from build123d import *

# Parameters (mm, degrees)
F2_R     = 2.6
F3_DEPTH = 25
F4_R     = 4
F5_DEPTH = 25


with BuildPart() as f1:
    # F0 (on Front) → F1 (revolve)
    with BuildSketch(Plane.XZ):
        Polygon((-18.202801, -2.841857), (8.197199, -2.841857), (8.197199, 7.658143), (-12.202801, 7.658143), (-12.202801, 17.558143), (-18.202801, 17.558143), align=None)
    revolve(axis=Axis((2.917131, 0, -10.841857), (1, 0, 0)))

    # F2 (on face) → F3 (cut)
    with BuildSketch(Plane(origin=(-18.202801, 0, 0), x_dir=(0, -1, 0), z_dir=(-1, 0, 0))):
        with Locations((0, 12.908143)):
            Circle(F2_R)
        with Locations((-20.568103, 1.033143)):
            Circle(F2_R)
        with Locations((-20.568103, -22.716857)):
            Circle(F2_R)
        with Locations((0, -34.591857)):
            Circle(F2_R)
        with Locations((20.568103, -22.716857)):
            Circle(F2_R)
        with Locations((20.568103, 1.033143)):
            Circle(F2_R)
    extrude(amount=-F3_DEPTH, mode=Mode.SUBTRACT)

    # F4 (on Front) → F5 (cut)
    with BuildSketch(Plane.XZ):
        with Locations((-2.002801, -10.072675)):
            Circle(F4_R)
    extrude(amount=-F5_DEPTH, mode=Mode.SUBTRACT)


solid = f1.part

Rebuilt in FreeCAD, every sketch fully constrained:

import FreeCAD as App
import Part
import Sketcher
Q = App.Units.Quantity

doc = App.newDocument("Part")
params = doc.addObject("Spreadsheet::Sheet", "Params")
for row, (alias, value) in enumerate([
    ("sketch1_width", "6 mm"),
    ("sketch1_width2", "26.4 mm"),
    ("sketch1_height", "10.5 mm"),
    ("revolution_angle", "360 deg"),
    ("sketch2_diameter", "5.2 mm"),
    ("pocket1_length", "25 mm"),
    ("sketch3_diameter", "8 mm"),
    ("pocket2_length", "25 mm"),
], start=1):
    params.set(f"A{row}", alias)
    params.set(f"B{row}", "=" + value)
    params.setAlias(f"B{row}", alias)

body = doc.addObject("PartDesign::Body", "Body")

# Sketch on XZ plane
sketch1 = body.newObject("Sketcher::SketchObject", "Sketch")
sketch1.AttachmentSupport = (doc.getObject("XZ_Plane"), [""])
sketch1.MapMode = "FlatFace"
sketch1.addGeometry([
    Part.LineSegment(App.Vector(-18, -3, 0), App.Vector(8, -3, 0)),  # 0
    Part.LineSegment(App.Vector(8, -3, 0), App.Vector(8, 8, 0)),  # 1
    Part.LineSegment(App.Vector(8, 8, 0), App.Vector(-12, 8, 0)),  # 2
    Part.LineSegment(App.Vector(-12, 8, 0), App.Vector(-12, 18, 0)),  # 3
    Part.LineSegment(App.Vector(-12, 18, 0), App.Vector(-18, 18, 0)),  # 4
    Part.LineSegment(App.Vector(-18, 18, 0), App.Vector(-18, -3, 0)),  # 5
], False)
sketch1.addGeometry(Part.LineSegment(App.Vector(-18, -11, 0), App.Vector(8, -11, 0)), True)  # axis
sketch1.addConstraint([
    Sketcher.Constraint("Coincident", 0, 2, 1, 1),
    Sketcher.Constraint("Coincident", 1, 2, 2, 1),
    Sketcher.Constraint("Coincident", 2, 2, 3, 1),
    Sketcher.Constraint("Coincident", 3, 2, 4, 1),
    Sketcher.Constraint("Coincident", 4, 2, 5, 1),
    Sketcher.Constraint("Coincident", 5, 2, 0, 1),
    Sketcher.Constraint("Horizontal", 0),
    Sketcher.Constraint("Vertical", 1),
    Sketcher.Constraint("Horizontal", 2),
    Sketcher.Constraint("Vertical", 3),
    Sketcher.Constraint("Horizontal", 4),
    Sketcher.Constraint("Vertical", 5),
    Sketcher.Constraint("Horizontal", 6),
    Sketcher.Constraint("Vertical", 5, 2, 6, 1),
    Sketcher.Constraint("Vertical", 1, 2, 6, 2),
    Sketcher.Constraint("Equal", 2, 5),
    Sketcher.Constraint("DistanceX", 4, 2, 4, 1, Q("6 mm")),
    Sketcher.Constraint("DistanceX", 0, 1, 0, 2, Q("26.4 mm")),
    Sketcher.Constraint("DistanceY", 1, 1, 1, 2, Q("10.5 mm")),
    Sketcher.Constraint("DistanceY", 6, 1, 5, 2, Q("8 mm")),
    Sketcher.Constraint("DistanceX", -1, 1, 0, 2, Q("8.197199 mm")),
    Sketcher.Constraint("DistanceY", 0, 2, -1, 1, Q("2.841857 mm")),
])
sketch1.setExpression("Constraints[16]", "Params.sketch1_width")
sketch1.setExpression("Constraints[17]", "Params.sketch1_width2")
sketch1.setExpression("Constraints[18]", "Params.sketch1_height")
revolution = body.newObject("PartDesign::Revolution", "Revolution")
revolution.Profile = sketch1
revolution.ReferenceAxis = (sketch1, ["Axis0"])
revolution.setExpression("Angle", "Params.revolution_angle")

# Sketch on YZ plane
sketch2 = body.newObject("Sketcher::SketchObject", "Sketch001")
sketch2.AttachmentSupport = (doc.getObject("YZ_Plane"), [""])
sketch2.MapMode = "FlatFace"
sketch2.AttachmentOffset = App.Placement(App.Vector(0, 0, -18.202801), App.Rotation())
sketch2.addGeometry([
    Part.Circle(App.Vector(0, 12.9, 0), App.Vector(0, 0, 1), 2.6),  # 0
    Part.Circle(App.Vector(20.6, 1, 0), App.Vector(0, 0, 1), 2.6),  # 1
    Part.Circle(App.Vector(20.6, -22.7, 0), App.Vector(0, 0, 1), 2.6),  # 2
    Part.Circle(App.Vector(0, -34.6, 0), App.Vector(0, 0, 1), 2.6),  # 3
    Part.Circle(App.Vector(-20.6, -22.7, 0), App.Vector(0, 0, 1), 2.6),  # 4
    Part.Circle(App.Vector(-20.6, 1, 0), App.Vector(0, 0, 1), 2.6),  # 5
], False)
sketch2.addConstraint([
    Sketcher.Constraint("Equal", 0, 1),
    Sketcher.Constraint("Equal", 1, 2),
    Sketcher.Constraint("Equal", 2, 3),
    Sketcher.Constraint("Equal", 3, 4),
    Sketcher.Constraint("Equal", 4, 5),
    Sketcher.Constraint("Symmetric", 2, 3, 4, 3, -2),
    Sketcher.Constraint("Symmetric", 1, 3, 5, 3, -2),
    Sketcher.Constraint("PointOnObject", 0, 3, -2),
    Sketcher.Constraint("PointOnObject", 3, 3, -2),
    Sketcher.Constraint("Vertical", 1, 3, 2, 3),
    Sketcher.Constraint("Diameter", 0, Q("5.2 mm")),
    Sketcher.Constraint("DistanceY", 3, 3, 0, 3, Q("47.5 mm")),
    Sketcher.Constraint("DistanceY", 2, 3, 1, 3, Q("23.75 mm")),
    Sketcher.Constraint("DistanceY", 1, 3, 0, 3, Q("11.875 mm")),
    Sketcher.Constraint("DistanceY", -1, 1, 0, 3, Q("12.908143 mm")),
    Sketcher.Constraint("DistanceX", -1, 1, 1, 3, Q("20.568103 mm")),
])
sketch2.setExpression("Constraints[10]", "Params.sketch2_diameter")
pocket1 = body.newObject("PartDesign::Pocket", "Pocket")
pocket1.Profile = sketch2
pocket1.setExpression("Length", "Params.pocket1_length")
pocket1.Reversed = True

# Sketch on XZ plane
sketch3 = body.newObject("Sketcher::SketchObject", "Sketch002")
sketch3.AttachmentSupport = (doc.getObject("XZ_Plane"), [""])
sketch3.MapMode = "FlatFace"
sketch3.addGeometry(Part.Circle(App.Vector(-2, -10.1, 0), App.Vector(0, 0, 1), 4), False)
sketch3.addConstraint([
    Sketcher.Constraint("Diameter", 0, Q("8 mm")),
    Sketcher.Constraint("DistanceX", 0, 3, -1, 1, Q("2.002801 mm")),
    Sketcher.Constraint("DistanceY", 0, 3, -1, 1, Q("10.072675 mm")),
])
sketch3.setExpression("Constraints[0]", "Params.sketch3_diameter")
pocket2 = body.newObject("PartDesign::Pocket", "Pocket001")
pocket2.Profile = sketch3
pocket2.setExpression("Length", "Params.pocket2_length")

doc.recompute()
